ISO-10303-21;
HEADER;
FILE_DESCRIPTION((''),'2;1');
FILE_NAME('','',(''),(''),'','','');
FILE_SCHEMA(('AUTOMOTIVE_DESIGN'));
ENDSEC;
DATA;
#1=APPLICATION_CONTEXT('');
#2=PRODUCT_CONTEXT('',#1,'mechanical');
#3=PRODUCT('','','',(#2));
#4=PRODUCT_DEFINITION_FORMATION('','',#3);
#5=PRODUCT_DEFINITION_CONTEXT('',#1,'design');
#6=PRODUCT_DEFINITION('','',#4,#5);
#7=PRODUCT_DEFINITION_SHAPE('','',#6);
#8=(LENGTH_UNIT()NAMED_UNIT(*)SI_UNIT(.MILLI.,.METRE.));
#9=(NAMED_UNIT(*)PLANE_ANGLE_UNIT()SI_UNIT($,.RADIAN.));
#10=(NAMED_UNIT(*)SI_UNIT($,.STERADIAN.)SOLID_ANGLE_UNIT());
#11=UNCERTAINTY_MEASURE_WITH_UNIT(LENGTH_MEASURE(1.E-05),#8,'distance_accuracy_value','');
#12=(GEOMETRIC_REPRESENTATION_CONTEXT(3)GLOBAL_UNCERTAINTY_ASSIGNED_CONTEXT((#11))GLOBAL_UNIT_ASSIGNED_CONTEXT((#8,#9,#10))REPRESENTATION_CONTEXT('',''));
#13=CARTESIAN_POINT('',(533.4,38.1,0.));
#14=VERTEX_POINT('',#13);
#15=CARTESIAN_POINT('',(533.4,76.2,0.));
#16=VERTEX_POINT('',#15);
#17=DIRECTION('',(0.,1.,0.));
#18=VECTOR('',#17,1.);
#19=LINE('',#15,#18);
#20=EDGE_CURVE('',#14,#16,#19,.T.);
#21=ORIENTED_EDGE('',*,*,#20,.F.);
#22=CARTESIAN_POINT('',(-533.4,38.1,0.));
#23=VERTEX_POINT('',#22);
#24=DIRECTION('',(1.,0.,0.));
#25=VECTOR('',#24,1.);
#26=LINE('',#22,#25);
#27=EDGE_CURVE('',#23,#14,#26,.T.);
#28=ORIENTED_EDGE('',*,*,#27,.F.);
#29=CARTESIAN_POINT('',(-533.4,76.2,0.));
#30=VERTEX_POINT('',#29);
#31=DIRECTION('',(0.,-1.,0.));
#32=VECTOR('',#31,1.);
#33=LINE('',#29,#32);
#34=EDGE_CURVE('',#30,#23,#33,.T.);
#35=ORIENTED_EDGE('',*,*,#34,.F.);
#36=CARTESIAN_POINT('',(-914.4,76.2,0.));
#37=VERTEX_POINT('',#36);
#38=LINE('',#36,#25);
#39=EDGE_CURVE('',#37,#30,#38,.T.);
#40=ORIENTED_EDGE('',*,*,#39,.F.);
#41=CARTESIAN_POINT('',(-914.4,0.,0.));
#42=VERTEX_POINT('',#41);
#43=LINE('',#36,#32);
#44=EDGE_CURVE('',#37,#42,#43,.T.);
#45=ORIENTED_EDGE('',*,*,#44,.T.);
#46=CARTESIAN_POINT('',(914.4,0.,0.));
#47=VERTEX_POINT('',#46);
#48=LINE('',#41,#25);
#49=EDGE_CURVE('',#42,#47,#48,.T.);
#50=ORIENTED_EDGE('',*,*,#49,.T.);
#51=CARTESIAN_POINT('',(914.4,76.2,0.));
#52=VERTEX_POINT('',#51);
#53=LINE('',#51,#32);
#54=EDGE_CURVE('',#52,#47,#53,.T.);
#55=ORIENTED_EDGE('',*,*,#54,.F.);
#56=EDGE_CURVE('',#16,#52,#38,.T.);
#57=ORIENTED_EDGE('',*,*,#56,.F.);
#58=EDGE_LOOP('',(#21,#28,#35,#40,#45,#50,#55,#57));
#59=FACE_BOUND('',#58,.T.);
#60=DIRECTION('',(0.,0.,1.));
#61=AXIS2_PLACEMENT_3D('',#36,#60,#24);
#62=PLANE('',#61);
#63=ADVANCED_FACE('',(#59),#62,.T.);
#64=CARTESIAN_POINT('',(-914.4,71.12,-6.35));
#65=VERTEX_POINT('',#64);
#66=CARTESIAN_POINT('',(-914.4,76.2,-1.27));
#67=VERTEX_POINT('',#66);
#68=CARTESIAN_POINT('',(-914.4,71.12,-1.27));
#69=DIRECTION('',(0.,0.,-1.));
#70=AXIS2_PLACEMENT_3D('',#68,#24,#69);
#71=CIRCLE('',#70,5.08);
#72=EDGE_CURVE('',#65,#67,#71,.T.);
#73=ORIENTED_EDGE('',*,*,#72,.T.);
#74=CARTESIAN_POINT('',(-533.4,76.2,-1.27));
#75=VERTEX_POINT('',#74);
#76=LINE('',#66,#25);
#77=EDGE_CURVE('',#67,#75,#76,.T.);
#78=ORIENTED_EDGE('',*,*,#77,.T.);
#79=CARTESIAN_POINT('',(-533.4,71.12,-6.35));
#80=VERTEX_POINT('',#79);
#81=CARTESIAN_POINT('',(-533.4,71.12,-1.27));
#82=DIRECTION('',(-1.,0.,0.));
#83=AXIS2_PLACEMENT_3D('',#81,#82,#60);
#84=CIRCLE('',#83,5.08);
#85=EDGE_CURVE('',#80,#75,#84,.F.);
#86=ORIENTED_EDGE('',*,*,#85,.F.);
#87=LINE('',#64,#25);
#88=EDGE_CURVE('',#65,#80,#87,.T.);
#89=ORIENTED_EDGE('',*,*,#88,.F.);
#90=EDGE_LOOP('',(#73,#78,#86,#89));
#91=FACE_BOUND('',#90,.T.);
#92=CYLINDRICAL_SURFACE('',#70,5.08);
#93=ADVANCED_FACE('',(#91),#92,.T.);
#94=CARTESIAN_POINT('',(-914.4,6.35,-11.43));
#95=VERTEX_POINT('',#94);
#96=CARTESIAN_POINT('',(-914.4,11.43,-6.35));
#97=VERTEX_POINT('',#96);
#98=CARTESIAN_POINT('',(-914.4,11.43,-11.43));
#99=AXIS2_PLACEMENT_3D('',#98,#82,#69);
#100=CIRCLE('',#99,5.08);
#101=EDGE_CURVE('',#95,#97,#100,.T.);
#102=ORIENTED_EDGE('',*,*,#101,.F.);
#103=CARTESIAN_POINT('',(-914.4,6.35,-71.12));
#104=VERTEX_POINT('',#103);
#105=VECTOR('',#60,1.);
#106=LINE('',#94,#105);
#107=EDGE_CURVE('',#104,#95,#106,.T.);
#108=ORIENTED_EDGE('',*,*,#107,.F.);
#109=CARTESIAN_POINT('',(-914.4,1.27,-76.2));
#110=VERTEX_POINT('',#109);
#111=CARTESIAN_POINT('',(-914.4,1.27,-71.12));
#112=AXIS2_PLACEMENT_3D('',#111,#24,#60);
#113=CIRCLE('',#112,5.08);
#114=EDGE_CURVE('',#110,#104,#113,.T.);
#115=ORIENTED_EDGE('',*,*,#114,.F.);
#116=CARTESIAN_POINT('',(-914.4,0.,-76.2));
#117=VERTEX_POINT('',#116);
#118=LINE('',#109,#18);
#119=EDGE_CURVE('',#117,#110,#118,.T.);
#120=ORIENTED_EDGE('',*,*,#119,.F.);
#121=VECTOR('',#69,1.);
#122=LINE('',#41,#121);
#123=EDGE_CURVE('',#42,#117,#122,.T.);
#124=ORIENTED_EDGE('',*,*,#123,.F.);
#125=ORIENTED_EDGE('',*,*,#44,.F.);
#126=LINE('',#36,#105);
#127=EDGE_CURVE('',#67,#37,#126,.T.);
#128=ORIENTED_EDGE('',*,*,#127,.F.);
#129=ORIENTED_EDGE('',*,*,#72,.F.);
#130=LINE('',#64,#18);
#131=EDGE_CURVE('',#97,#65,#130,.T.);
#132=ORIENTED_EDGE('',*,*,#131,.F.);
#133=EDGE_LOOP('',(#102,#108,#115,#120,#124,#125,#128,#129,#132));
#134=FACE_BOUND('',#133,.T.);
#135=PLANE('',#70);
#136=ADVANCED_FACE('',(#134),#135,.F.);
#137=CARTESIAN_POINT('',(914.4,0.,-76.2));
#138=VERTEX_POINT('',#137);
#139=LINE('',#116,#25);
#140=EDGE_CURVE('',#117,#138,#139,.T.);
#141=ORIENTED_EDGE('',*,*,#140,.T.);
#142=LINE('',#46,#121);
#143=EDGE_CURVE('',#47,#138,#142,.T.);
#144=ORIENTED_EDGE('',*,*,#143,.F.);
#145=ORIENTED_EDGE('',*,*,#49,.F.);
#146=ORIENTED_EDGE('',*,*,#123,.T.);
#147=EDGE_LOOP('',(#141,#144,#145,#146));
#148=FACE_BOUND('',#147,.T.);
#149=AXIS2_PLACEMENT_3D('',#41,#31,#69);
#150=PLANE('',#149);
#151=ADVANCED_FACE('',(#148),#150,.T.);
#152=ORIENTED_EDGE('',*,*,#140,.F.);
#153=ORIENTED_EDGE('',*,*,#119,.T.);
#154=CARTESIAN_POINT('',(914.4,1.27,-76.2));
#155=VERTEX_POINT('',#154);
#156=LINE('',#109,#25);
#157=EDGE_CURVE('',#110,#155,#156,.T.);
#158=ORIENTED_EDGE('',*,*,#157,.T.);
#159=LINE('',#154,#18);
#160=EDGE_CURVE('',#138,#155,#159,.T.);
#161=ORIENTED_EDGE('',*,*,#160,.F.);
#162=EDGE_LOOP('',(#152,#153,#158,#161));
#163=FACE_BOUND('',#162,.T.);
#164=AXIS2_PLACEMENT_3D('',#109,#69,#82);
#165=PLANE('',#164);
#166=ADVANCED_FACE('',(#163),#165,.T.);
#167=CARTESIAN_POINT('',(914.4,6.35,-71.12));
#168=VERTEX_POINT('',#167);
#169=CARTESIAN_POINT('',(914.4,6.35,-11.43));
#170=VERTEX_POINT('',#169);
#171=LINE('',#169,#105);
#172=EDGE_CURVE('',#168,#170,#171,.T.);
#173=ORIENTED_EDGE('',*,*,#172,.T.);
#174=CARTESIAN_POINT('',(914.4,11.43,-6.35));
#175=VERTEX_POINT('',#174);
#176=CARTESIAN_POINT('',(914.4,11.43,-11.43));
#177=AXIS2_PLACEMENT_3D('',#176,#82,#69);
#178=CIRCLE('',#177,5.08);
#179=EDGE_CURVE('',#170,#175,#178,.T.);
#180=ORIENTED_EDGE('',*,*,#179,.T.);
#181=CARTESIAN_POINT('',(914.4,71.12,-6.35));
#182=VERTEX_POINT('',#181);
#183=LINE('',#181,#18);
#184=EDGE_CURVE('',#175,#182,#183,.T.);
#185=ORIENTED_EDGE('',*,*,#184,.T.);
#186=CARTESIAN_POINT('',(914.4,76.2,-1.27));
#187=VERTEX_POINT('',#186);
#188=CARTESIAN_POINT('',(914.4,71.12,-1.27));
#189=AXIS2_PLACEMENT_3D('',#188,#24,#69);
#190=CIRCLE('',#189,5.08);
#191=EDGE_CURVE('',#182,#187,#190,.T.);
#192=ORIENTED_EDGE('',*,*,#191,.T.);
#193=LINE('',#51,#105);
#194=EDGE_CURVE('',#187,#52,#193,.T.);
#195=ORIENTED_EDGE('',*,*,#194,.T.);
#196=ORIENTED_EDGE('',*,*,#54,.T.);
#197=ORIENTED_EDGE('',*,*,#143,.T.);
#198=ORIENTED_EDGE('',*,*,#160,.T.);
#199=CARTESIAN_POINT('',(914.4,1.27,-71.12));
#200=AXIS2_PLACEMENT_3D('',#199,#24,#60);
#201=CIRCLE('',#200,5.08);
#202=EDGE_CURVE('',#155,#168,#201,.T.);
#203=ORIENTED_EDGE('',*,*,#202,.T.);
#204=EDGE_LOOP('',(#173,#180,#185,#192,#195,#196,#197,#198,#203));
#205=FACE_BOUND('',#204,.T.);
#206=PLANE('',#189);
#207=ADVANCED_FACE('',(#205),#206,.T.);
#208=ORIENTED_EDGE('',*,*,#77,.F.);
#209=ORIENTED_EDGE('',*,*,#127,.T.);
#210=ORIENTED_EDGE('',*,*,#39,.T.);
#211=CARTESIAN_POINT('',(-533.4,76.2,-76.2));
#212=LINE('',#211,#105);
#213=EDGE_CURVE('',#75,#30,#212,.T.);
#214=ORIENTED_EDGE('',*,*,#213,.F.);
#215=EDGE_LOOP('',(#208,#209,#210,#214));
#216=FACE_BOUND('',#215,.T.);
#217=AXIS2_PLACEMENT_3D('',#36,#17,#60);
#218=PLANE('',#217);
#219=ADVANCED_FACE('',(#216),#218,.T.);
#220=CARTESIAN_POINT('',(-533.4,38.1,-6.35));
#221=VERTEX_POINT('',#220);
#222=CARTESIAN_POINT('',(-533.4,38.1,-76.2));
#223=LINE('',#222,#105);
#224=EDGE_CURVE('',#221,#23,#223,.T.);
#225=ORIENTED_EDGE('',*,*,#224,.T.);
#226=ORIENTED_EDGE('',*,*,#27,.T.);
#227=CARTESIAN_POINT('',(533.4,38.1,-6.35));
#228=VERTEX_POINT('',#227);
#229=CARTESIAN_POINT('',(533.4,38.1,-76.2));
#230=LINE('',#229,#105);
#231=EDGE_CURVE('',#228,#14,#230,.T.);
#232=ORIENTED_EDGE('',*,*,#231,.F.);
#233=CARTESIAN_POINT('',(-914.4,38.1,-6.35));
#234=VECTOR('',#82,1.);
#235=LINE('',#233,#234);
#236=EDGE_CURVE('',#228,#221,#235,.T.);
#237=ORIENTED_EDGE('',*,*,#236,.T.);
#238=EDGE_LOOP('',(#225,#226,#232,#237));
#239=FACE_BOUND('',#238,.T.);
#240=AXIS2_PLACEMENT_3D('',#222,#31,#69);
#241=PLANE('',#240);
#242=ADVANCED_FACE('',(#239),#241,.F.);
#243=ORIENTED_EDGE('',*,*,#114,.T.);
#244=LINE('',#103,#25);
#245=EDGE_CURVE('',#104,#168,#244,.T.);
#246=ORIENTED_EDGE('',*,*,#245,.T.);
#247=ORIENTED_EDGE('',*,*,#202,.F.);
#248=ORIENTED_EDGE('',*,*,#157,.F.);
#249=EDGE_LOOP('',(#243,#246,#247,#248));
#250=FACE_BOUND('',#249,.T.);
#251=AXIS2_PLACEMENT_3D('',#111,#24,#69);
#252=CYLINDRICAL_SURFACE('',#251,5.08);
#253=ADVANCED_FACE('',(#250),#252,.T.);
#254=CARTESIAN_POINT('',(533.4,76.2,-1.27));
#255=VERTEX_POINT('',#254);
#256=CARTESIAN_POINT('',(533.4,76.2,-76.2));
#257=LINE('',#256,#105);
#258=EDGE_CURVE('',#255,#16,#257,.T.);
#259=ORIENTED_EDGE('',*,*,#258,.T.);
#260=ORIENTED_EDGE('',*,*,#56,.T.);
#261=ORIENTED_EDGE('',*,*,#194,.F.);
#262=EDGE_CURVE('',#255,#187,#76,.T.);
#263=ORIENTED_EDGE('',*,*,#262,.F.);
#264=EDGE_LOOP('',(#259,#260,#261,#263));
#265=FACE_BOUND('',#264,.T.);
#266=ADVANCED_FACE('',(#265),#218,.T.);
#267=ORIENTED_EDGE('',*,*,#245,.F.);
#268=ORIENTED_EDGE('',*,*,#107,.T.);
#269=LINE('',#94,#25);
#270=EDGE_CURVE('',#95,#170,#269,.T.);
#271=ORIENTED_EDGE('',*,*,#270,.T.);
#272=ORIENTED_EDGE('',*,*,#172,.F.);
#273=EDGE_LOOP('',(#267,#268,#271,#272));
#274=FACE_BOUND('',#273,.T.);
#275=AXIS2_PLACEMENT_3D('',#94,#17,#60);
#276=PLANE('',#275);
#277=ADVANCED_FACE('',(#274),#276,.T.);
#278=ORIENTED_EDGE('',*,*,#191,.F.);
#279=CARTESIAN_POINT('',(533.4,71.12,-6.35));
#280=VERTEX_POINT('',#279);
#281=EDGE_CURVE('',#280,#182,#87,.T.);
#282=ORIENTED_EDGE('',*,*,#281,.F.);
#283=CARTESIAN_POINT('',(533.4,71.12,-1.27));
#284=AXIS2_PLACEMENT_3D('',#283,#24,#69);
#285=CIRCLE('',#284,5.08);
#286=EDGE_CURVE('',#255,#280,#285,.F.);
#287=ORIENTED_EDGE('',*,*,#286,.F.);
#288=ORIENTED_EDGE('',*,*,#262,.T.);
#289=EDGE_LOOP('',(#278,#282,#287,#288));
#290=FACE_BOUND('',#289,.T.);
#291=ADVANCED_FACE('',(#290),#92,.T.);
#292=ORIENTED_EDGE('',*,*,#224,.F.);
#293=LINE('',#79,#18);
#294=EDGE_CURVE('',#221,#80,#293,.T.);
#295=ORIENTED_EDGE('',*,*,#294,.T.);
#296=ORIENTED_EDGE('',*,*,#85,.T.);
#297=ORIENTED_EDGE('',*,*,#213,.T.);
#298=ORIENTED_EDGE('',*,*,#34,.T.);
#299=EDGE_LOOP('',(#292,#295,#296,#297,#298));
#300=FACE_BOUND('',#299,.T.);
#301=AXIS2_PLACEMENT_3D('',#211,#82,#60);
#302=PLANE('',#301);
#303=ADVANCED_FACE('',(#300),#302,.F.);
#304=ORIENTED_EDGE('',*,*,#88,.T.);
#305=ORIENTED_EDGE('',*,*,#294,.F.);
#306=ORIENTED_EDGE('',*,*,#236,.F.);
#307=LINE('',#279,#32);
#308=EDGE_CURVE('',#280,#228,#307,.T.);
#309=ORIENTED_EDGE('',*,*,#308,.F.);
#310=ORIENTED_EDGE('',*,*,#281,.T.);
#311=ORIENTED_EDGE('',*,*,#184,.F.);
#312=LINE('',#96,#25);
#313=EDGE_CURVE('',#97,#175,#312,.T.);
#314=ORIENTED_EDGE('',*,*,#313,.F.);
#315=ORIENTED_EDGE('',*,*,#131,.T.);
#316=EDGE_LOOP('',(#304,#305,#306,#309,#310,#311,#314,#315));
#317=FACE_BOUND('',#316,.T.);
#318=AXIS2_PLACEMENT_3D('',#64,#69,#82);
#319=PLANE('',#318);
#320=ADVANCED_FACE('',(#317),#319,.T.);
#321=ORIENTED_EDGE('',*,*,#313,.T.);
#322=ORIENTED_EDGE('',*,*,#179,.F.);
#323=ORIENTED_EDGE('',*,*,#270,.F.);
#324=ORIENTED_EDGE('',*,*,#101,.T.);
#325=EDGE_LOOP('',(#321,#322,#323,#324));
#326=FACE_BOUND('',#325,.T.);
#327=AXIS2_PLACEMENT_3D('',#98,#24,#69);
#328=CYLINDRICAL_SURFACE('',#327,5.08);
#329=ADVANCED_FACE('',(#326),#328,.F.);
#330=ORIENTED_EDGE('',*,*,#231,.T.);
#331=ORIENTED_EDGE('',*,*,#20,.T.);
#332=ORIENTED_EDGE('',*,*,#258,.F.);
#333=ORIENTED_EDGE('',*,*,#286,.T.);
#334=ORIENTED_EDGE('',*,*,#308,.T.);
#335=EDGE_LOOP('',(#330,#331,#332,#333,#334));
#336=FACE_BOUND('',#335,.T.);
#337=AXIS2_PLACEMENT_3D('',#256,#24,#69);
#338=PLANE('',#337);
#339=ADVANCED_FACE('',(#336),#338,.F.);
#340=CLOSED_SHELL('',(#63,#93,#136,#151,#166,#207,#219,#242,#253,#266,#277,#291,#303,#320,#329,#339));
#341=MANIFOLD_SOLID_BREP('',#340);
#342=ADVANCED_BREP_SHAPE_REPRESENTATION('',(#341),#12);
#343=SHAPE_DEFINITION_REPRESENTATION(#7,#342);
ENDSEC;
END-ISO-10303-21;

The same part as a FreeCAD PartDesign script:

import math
import FreeCAD as App
import Part
import Sketcher
from FreeCAD import Vector
Q = App.Units.Quantity


def add_polygon(sketch, points):
    """Adds a closed chain of lines whose ends are joined by coincident constraints."""
    first, n = sketch.GeometryCount, len(points)
    for a, b in zip(points, points[1:] + points[:1]):
        sketch.addGeometry(Part.LineSegment(App.Vector(*a, 0), App.Vector(*b, 0)), False)
    for i in range(n):
        sketch.addConstraint(Sketcher.Constraint("Coincident", first + i, 2, first + (i + 1) % n, 1))

doc = App.newDocument("Part")
params = doc.addObject("Spreadsheet::Sheet", "Params")
for row, (alias, value) in enumerate([
    ("sketch1_radius", "0.2 in"),
    ("sketch1_width", "3 in"),
    ("sketch1_width2", "0.05 in"),
    ("pad1_length", "36 in"),
    ("pad1_length2", "36 in"),
    ("sketch2_width", "42 in"),
    ("sketch2_height", "1.5 in"),
], start=1):
    params.set(f"A{row}", alias)
    params.set(f"B{row}", "=" + value)
    params.setAlias(f"B{row}", alias)

body = doc.addObject("PartDesign::Body", "Body")

# Sketch on YZ plane
sketch1 = doc.addObject("Sketcher::SketchObject", "Sketch")
body.addObject(sketch1)
sketch1.AttachmentSupport = (doc.YZ_Plane, [""])
sketch1.MapMode = "FlatFace"
sketch1.addGeometry([
    Part.LineSegment(Vector(76.2, 0, 0), Vector(0, 0, 0)),  # 0
    Part.LineSegment(Vector(0, 0, 0), Vector(0, -76.2, 0)),  # 1
    Part.LineSegment(Vector(0, -76.2, 0), Vector(1.27, -76.2, 0)),  # 2
    Part.ArcOfCircle(Part.Circle(Vector(1.27, -71.12, 0), Vector(0, 0, 1), 5.08), math.radians(-90), math.radians(0)),  # 3
    Part.LineSegment(Vector(6.35, -71.12, 0), Vector(6.35, -11.43, 0)),  # 4
    Part.ArcOfCircle(Part.Circle(Vector(11.43, -11.43, 0), Vector(0, 0, 1), 5.08), math.radians(90), math.radians(180)),  # 5
    Part.LineSegment(Vector(11.43, -6.35, 0), Vector(71.12, -6.35, 0)),  # 6
    Part.ArcOfCircle(Part.Circle(Vector(71.12, -1.27, 0), Vector(0, 0, 1), 5.08), math.radians(-90), math.radians(0)),  # 7
    Part.LineSegment(Vector(76.2, -1.27, 0), Vector(76.2, 0, 0)),  # 8
], False)
sketch1.addConstraint([
    Sketcher.Constraint("Coincident", 0, 2, 1, 1),
    Sketcher.Constraint("Coincident", 1, 2, 2, 1),
    Sketcher.Constraint("Tangent", 2, 2, 3, 1),
    Sketcher.Constraint("Tangent", 3, 2, 4, 1),
    Sketcher.Constraint("Tangent", 4, 2, 5, 2),
    Sketcher.Constraint("Tangent", 5, 1, 6, 1),
    Sketcher.Constraint("Tangent", 6, 2, 7, 1),
    Sketcher.Constraint("Tangent", 7, 2, 8, 1),
    Sketcher.Constraint("Coincident", 8, 2, 0, 1),
    Sketcher.Constraint("Horizontal", 0),
    Sketcher.Constraint("Vertical", 1),
    Sketcher.Constraint("Horizontal", 2),
    Sketcher.Constraint("Vertical", 4),
    Sketcher.Constraint("Horizontal", 6),
    Sketcher.Constraint("Vertical", 8),
    Sketcher.Constraint("Coincident", 0, 2, -1, 1),
    Sketcher.Constraint("Equal", 3, 5),
    Sketcher.Constraint("Equal", 5, 7),
    Sketcher.Constraint("Equal", 0, 1),
    Sketcher.Constraint("Equal", 6, 4),
    Sketcher.Constraint("Radius", 3, Q("0.2 in")),
    Sketcher.Constraint("DistanceX", 0, 2, 0, 1, Q("3 in")),
    Sketcher.Constraint("DistanceX", 2, 1, 2, 2, Q("0.05 in")),
])
sketch1.setExpression("Constraints[20]", "Params.sketch1_radius")
sketch1.setExpression("Constraints[21]", "Params.sketch1_width")
sketch1.setExpression("Constraints[22]", "Params.sketch1_width2")
pad1 = doc.addObject("PartDesign::Pad", "Pad")
body.addObject(pad1)
pad1.Profile = sketch1
pad1.Type = "TwoLengths"
pad1.setExpression("Length", "Params.pad1_length")
pad1.setExpression("Length2", "Params.pad1_length2")

# Sketch on XY plane
sketch2 = doc.addObject("Sketcher::SketchObject", "Sketch001")
body.addObject(sketch2)
sketch2.AttachmentSupport = (doc.XY_Plane, [""])
sketch2.MapMode = "FlatFace"
add_polygon(sketch2, [(-533.4, 76.2), (-533.4, 38.1), (533.4, 38.1), (533.4, 76.2)])  # lines 0-3
sketch2.addConstraint([
    Sketcher.Constraint("Vertical", 0),
    Sketcher.Constraint("Horizontal", 1),
    Sketcher.Constraint("Vertical", 2),
    Sketcher.Constraint("Horizontal", 3),
    Sketcher.Constraint("DistanceX", 1, 1, 1, 2, Q("42 in")),
    Sketcher.Constraint("DistanceY", 0, 2, 0, 1, Q("1.5 in")),
    Sketcher.Constraint("DistanceX", 0, 2, -1, 1, Q("21 in")),
    Sketcher.Constraint("DistanceY", -1, 1, 2, 2, Q("3 in")),
])
sketch2.setExpression("Constraints[8]", "Params.sketch2_width")
sketch2.setExpression("Constraints[9]", "Params.sketch2_height")
pocket1 = doc.addObject("PartDesign::Pocket", "Pocket")
body.addObject(pocket1)
pocket1.Profile = sketch2
pocket1.Type = "ThroughAll"

doc.recompute()
